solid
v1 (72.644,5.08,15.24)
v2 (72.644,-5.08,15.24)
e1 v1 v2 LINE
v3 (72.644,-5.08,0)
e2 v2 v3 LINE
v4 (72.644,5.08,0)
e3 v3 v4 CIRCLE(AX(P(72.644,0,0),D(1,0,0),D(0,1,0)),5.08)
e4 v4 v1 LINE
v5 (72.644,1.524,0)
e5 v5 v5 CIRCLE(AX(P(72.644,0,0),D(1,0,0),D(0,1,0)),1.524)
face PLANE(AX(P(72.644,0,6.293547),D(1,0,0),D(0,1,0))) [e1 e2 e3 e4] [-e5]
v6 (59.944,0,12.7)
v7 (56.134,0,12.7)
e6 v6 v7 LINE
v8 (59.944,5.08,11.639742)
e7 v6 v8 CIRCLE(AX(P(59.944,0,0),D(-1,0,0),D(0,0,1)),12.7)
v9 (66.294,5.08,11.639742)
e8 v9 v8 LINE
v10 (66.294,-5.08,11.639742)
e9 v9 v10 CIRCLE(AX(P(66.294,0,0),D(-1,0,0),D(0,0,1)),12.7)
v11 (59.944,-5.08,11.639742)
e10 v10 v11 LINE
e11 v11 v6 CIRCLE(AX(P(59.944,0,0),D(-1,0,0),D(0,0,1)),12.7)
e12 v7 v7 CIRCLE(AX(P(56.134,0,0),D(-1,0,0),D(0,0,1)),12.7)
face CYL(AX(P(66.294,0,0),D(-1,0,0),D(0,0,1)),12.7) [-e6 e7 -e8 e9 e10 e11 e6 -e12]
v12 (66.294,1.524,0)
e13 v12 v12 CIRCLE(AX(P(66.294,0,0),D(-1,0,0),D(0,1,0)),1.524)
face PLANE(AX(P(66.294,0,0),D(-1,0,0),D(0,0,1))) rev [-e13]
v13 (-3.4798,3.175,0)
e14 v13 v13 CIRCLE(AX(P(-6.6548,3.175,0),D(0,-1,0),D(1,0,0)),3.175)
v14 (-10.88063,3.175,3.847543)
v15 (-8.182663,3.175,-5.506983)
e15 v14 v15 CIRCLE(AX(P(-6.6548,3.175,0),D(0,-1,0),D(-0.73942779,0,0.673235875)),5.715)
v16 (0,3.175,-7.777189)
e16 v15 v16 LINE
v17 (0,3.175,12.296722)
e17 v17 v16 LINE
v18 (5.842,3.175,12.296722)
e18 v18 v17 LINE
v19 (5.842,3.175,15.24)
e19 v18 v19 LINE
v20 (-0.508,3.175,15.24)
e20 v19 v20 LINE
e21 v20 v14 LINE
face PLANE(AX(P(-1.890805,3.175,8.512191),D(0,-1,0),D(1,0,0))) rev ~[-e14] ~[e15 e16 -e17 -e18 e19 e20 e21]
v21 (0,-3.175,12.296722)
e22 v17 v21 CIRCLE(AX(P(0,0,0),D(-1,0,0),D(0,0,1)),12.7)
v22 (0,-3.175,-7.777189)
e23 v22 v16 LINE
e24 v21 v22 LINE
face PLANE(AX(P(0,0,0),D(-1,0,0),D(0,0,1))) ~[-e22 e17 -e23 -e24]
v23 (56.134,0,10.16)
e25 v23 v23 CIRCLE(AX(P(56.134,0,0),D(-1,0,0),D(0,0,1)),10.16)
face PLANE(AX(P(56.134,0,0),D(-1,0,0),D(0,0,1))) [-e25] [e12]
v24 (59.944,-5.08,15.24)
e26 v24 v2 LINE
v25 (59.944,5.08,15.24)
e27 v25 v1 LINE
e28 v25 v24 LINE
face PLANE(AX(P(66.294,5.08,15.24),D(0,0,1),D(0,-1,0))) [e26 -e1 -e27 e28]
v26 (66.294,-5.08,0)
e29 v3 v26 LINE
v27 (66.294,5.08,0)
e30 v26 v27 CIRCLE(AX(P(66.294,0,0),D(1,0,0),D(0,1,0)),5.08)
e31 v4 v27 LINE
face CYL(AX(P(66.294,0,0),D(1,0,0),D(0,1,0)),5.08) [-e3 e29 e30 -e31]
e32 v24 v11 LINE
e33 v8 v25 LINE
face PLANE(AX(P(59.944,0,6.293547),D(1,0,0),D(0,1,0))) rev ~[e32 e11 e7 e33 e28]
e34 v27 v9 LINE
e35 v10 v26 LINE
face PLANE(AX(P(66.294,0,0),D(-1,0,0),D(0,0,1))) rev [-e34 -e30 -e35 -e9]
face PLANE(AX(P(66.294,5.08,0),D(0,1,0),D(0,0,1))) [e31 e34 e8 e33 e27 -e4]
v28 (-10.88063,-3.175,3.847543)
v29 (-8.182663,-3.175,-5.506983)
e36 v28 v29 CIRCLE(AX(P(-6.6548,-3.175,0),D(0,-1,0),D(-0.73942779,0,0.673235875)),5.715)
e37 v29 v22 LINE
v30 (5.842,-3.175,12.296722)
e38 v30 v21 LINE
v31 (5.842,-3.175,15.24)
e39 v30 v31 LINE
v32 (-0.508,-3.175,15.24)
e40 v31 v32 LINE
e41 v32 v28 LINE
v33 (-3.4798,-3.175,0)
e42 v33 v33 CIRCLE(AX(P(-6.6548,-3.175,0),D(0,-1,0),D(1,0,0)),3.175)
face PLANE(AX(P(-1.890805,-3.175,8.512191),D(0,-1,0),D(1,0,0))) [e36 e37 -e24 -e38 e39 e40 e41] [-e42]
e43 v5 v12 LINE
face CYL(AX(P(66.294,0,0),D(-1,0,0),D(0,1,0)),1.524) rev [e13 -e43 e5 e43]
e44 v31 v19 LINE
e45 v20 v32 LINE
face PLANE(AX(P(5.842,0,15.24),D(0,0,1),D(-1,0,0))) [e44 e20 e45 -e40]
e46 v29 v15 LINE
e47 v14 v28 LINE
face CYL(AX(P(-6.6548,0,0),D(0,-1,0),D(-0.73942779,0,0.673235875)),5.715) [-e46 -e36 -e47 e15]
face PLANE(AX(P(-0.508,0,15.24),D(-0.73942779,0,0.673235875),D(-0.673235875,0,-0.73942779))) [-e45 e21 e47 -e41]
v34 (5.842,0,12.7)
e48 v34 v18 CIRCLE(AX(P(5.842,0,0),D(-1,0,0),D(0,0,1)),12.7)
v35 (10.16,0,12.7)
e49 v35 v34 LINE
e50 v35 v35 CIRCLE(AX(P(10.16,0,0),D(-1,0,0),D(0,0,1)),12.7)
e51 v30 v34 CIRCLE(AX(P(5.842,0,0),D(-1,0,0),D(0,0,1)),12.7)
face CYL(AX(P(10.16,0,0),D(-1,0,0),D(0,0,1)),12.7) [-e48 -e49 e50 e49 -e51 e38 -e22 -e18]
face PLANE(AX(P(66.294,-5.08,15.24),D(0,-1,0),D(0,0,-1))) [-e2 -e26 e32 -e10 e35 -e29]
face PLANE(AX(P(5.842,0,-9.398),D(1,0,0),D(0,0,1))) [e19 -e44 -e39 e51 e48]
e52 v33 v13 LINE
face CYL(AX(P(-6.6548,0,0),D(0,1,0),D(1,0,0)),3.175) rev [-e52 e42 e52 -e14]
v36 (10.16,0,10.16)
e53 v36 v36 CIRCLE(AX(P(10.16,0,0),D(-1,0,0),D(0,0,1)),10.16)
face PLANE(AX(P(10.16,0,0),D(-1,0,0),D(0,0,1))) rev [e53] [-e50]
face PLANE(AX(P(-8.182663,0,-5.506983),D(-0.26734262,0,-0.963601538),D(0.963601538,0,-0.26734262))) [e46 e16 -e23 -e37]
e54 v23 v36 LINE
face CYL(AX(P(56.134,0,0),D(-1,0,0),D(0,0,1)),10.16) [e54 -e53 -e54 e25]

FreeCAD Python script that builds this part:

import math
import FreeCAD as App
import Part
import Sketcher
from FreeCAD import Vector
Q = App.Units.Quantity

doc = App.newDocument("Part")
params = doc.addObject("Spreadsheet::Sheet", "Params")
for row, (alias, value) in enumerate([
    ("sketch1_width", "0.4 in"),
    ("sketch1_height", "0.5 in"),
    ("sketch1_height2", "0.1 in"),
    ("sketch1_width2", "1.81 in"),
    ("revolution_angle", "360 deg"),
    ("sketch2_diameter", "0.25 in"),
    ("sketch2_radius", "0.225 in"),
    ("sketch2_width", "0.25 in"),
    ("sketch2_height", "0.97 in"),
    ("pad1_length", "0.25 in"),
    ("sketch3_radius", "0.2 in"),
    ("sketch3_diameter", "0.12 in"),
    ("sketch3_height", "0.6 in"),
    ("pad2_length", "0.5 in"),
], start=1):
    params.set(f"A{row}", alias)
    params.set(f"B{row}", "=" + value)
    params.setAlias(f"B{row}", alias)

body = doc.addObject("PartDesign::Body", "Body")

# Sketch on XZ plane
sketch1 = doc.addObject("Sketcher::SketchObject", "Sketch")
body.addObject(sketch1)
sketch1.AttachmentSupport = (doc.XZ_Plane, [""])
sketch1.MapMode = "FlatFace"
sketch1.addGeometry([
    Part.LineSegment(Vector(66.3, 0, 0), Vector(66.3, 12.7, 0)),  # 0
    Part.LineSegment(Vector(66.3, 12.7, 0), Vector(56.1, 12.7, 0)),  # 1
    Part.LineSegment(Vector(56.1, 12.7, 0), Vector(56.1, 10.2, 0)),  # 2
    Part.LineSegment(Vector(56.1, 10.2, 0), Vector(10.2, 10.2, 0)),  # 3
    Part.LineSegment(Vector(10.2, 10.2, 0), Vector(10.2, 12.7, 0)),  # 4
    Part.LineSegment(Vector(10.2, 12.7, 0), Vector(0, 12.7, 0)),  # 5
    Part.LineSegment(Vector(0, 12.7, 0), Vector(0, 0, 0)),  # 6
    Part.LineSegment(Vector(0, 0, 0), Vector(66.3, 0, 0)),  # 7
], False)
sketch1.addConstraint([
    Sketcher.Constraint("Coincident", 0, 2, 1, 1),
    Sketcher.Constraint("Coincident", 1, 2, 2, 1),
    Sketcher.Constraint("Coincident", 2, 2, 3, 1),
    Sketcher.Constraint("Coincident", 3, 2, 4, 1),
    Sketcher.Constraint("Coincident", 4, 2, 5, 1),
    Sketcher.Constraint("Coincident", 5, 2, 6, 1),
    Sketcher.Constraint("Coincident", 6, 2, 7, 1),
    Sketcher.Constraint("Coincident", 7, 2, 0, 1),
    Sketcher.Constraint("Vertical", 0),
    Sketcher.Constraint("Horizontal", 1),
    Sketcher.Constraint("Vertical", 2),
    Sketcher.Constraint("Horizontal", 3),
    Sketcher.Constraint("Vertical", 4),
    Sketcher.Constraint("Horizontal", 5),
    Sketcher.Constraint("Vertical", 6),
    Sketcher.Constraint("Horizontal", 7),
    Sketcher.Constraint("Coincident", 6, 2, -1, 1),
    Sketcher.Constraint("Horizontal", 1, 2, 4, 2),
    Sketcher.Constraint("Equal", 1, 5),
    Sketcher.Constraint("DistanceX", 1, 2, 1, 1, Q("0.4 in")),
    Sketcher.Constraint("DistanceY", 0, 1, 0, 2, Q("0.5 in")),
    Sketcher.Constraint("DistanceY", 2, 2, 2, 1, Q("0.1 in")),
    Sketcher.Constraint("DistanceX", 3, 2, 3, 1, Q("1.81 in")),
])
sketch1.setExpression("Constraints[19]", "Params.sketch1_width")
sketch1.setExpression("Constraints[20]", "Params.sketch1_height")
sketch1.setExpression("Constraints[21]", "Params.sketch1_height2")
sketch1.setExpression("Constraints[22]", "Params.sketch1_width2")
revolution = doc.addObject("PartDesign::Revolution", "Revolution")
body.addObject(revolution)
revolution.Profile = sketch1
revolution.ReferenceAxis = (sketch1, ["H_Axis"])
revolution.setExpression("Angle", "Params.revolution_angle")

# Sketch on XZ plane
sketch2 = doc.addObject("Sketcher::SketchObject", "Sketch001")
body.addObject(sketch2)
sketch2.AttachmentSupport = (doc.XZ_Plane, [""])
sketch2.MapMode = "FlatFace"
sketch2.addGeometry([
    Part.LineSegment(Vector(5.8, 15.2, 0), Vector(-0.5, 15.2, 0)),  # 0
    Part.LineSegment(Vector(-0.5, 15.2, 0), Vector(-10.9, 3.8, 0)),  # 1
    Part.ArcOfCircle(Part.Circle(Vector(-6.7, 0, 0), Vector(0, 0, 1), 5.7), math.radians(138), math.radians(254)),  # 2
    Part.LineSegment(Vector(-8.2, -5.5, 0), Vector(5.8, -9.4, 0)),  # 3
    Part.LineSegment(Vector(5.8, -9.4, 0), Vector(5.8, 15.2, 0)),  # 4
    Part.Circle(Vector(-6.7, 0, 0), Vector(0, 0, 1), 3.2),  # 5
], False)
sketch2.addConstraint([
    Sketcher.Constraint("Coincident", 0, 2, 1, 1),
    Sketcher.Constraint("Tangent", 1, 2, 2, 1),
    Sketcher.Constraint("Tangent", 2, 2, 3, 1),
    Sketcher.Constraint("Coincident", 3, 2, 4, 1),
    Sketcher.Constraint("Coincident", 4, 2, 0, 1),
    Sketcher.Constraint("Horizontal", 0),
    Sketcher.Constraint("Vertical", 4),
    Sketcher.Constraint("Coincident", 5, 3, 2, 3),
    Sketcher.Constraint("PointOnObject", 2, 3, -1),
    Sketcher.Constraint("Diameter", 5, Q("0.25 in")),
    Sketcher.Constraint("Radius", 2, Q("0.225 in")),
    Sketcher.Constraint("DistanceX", 0, 2, 0, 1, Q("0.25 in")),
    Sketcher.Constraint("DistanceY", 4, 1, 4, 2, Q("0.97 in")),
    Sketcher.Constraint("DistanceY", -1, 1, 0, 2, Q("0.6 in")),
    Sketcher.Constraint("DistanceX", 0, 2, -1, 1, Q("0.02 in")),
    Sketcher.Constraint("DistanceX", 2, 3, -1, 1, Q("0.262 in")),
])
sketch2.setExpression("Constraints[9]", "Params.sketch2_diameter")
sketch2.setExpression("Constraints[10]", "Params.sketch2_radius")
sketch2.setExpression("Constraints[11]", "Params.sketch2_width")
sketch2.setExpression("Constraints[12]", "Params.sketch2_height")
pad1 = doc.addObject("PartDesign::Pad", "Pad")
body.addObject(pad1)
pad1.Profile = sketch2
pad1.setExpression("Length", "Params.pad1_length")
pad1.Midplane = True

# Sketch on YZ plane
sketch3 = doc.addObject("Sketcher::SketchObject", "Sketch002")
body.addObject(sketch3)
sketch3.AttachmentSupport = (doc.YZ_Plane, [""])
sketch3.MapMode = "FlatFace"
sketch3.AttachmentOffset = App.Placement(Vector(0, 0, 2.61 * 25.4), App.Rotation())
sketch3.addGeometry([
    Part.LineSegment(Vector(5.1, 0, 0), Vector(5.1, 15.2, 0)),  # 0
    Part.LineSegment(Vector(5.1, 15.2, 0), Vector(-5.1, 15.2, 0)),  # 1
    Part.LineSegment(Vector(-5.1, 15.2, 0), Vector(-5.1, 0, 0)),  # 2
    Part.ArcOfCircle(Part.Circle(Vector(0, 0, 0), Vector(0, 0, 1), 5.1), math.radians(180), math.radians(360)),  # 3
    Part.Circle(Vector(0, 0, 0), Vector(0, 0, 1), 1.5),  # 4
], False)
sketch3.addConstraint([
    Sketcher.Constraint("Coincident", 0, 2, 1, 1),
    Sketcher.Constraint("Coincident", 1, 2, 2, 1),
    Sketcher.Constraint("Tangent", 2, 2, 3, 1),
    Sketcher.Constraint("Tangent", 3, 2, 0, 1),
    Sketcher.Constraint("Vertical", 0),
    Sketcher.Constraint("Horizontal", 1),
    Sketcher.Constraint("Vertical", 2),
    Sketcher.Constraint("Coincident", 3, 3, -1, 1),
    Sketcher.Constraint("Coincident", 4, 3, -1, 1),
    Sketcher.Constraint("Radius", 3, Q("0.2 in")),
    Sketcher.Constraint("Diameter", 4, Q("0.12 in")),
    Sketcher.Constraint("DistanceY", 0, 1, 0, 2, Q("0.6 in")),
])
sketch3.setExpression("Constraints[9]", "Params.sketch3_radius")
sketch3.setExpression("Constraints[10]", "Params.sketch3_diameter")
sketch3.setExpression("Constraints[11]", "Params.sketch3_height")
pad2 = doc.addObject("PartDesign::Pad", "Pad001")
body.addObject(pad2)
pad2.Profile = sketch3
pad2.setExpression("Length", "Params.pad2_length")
pad2.Midplane = True

doc.recompute()
